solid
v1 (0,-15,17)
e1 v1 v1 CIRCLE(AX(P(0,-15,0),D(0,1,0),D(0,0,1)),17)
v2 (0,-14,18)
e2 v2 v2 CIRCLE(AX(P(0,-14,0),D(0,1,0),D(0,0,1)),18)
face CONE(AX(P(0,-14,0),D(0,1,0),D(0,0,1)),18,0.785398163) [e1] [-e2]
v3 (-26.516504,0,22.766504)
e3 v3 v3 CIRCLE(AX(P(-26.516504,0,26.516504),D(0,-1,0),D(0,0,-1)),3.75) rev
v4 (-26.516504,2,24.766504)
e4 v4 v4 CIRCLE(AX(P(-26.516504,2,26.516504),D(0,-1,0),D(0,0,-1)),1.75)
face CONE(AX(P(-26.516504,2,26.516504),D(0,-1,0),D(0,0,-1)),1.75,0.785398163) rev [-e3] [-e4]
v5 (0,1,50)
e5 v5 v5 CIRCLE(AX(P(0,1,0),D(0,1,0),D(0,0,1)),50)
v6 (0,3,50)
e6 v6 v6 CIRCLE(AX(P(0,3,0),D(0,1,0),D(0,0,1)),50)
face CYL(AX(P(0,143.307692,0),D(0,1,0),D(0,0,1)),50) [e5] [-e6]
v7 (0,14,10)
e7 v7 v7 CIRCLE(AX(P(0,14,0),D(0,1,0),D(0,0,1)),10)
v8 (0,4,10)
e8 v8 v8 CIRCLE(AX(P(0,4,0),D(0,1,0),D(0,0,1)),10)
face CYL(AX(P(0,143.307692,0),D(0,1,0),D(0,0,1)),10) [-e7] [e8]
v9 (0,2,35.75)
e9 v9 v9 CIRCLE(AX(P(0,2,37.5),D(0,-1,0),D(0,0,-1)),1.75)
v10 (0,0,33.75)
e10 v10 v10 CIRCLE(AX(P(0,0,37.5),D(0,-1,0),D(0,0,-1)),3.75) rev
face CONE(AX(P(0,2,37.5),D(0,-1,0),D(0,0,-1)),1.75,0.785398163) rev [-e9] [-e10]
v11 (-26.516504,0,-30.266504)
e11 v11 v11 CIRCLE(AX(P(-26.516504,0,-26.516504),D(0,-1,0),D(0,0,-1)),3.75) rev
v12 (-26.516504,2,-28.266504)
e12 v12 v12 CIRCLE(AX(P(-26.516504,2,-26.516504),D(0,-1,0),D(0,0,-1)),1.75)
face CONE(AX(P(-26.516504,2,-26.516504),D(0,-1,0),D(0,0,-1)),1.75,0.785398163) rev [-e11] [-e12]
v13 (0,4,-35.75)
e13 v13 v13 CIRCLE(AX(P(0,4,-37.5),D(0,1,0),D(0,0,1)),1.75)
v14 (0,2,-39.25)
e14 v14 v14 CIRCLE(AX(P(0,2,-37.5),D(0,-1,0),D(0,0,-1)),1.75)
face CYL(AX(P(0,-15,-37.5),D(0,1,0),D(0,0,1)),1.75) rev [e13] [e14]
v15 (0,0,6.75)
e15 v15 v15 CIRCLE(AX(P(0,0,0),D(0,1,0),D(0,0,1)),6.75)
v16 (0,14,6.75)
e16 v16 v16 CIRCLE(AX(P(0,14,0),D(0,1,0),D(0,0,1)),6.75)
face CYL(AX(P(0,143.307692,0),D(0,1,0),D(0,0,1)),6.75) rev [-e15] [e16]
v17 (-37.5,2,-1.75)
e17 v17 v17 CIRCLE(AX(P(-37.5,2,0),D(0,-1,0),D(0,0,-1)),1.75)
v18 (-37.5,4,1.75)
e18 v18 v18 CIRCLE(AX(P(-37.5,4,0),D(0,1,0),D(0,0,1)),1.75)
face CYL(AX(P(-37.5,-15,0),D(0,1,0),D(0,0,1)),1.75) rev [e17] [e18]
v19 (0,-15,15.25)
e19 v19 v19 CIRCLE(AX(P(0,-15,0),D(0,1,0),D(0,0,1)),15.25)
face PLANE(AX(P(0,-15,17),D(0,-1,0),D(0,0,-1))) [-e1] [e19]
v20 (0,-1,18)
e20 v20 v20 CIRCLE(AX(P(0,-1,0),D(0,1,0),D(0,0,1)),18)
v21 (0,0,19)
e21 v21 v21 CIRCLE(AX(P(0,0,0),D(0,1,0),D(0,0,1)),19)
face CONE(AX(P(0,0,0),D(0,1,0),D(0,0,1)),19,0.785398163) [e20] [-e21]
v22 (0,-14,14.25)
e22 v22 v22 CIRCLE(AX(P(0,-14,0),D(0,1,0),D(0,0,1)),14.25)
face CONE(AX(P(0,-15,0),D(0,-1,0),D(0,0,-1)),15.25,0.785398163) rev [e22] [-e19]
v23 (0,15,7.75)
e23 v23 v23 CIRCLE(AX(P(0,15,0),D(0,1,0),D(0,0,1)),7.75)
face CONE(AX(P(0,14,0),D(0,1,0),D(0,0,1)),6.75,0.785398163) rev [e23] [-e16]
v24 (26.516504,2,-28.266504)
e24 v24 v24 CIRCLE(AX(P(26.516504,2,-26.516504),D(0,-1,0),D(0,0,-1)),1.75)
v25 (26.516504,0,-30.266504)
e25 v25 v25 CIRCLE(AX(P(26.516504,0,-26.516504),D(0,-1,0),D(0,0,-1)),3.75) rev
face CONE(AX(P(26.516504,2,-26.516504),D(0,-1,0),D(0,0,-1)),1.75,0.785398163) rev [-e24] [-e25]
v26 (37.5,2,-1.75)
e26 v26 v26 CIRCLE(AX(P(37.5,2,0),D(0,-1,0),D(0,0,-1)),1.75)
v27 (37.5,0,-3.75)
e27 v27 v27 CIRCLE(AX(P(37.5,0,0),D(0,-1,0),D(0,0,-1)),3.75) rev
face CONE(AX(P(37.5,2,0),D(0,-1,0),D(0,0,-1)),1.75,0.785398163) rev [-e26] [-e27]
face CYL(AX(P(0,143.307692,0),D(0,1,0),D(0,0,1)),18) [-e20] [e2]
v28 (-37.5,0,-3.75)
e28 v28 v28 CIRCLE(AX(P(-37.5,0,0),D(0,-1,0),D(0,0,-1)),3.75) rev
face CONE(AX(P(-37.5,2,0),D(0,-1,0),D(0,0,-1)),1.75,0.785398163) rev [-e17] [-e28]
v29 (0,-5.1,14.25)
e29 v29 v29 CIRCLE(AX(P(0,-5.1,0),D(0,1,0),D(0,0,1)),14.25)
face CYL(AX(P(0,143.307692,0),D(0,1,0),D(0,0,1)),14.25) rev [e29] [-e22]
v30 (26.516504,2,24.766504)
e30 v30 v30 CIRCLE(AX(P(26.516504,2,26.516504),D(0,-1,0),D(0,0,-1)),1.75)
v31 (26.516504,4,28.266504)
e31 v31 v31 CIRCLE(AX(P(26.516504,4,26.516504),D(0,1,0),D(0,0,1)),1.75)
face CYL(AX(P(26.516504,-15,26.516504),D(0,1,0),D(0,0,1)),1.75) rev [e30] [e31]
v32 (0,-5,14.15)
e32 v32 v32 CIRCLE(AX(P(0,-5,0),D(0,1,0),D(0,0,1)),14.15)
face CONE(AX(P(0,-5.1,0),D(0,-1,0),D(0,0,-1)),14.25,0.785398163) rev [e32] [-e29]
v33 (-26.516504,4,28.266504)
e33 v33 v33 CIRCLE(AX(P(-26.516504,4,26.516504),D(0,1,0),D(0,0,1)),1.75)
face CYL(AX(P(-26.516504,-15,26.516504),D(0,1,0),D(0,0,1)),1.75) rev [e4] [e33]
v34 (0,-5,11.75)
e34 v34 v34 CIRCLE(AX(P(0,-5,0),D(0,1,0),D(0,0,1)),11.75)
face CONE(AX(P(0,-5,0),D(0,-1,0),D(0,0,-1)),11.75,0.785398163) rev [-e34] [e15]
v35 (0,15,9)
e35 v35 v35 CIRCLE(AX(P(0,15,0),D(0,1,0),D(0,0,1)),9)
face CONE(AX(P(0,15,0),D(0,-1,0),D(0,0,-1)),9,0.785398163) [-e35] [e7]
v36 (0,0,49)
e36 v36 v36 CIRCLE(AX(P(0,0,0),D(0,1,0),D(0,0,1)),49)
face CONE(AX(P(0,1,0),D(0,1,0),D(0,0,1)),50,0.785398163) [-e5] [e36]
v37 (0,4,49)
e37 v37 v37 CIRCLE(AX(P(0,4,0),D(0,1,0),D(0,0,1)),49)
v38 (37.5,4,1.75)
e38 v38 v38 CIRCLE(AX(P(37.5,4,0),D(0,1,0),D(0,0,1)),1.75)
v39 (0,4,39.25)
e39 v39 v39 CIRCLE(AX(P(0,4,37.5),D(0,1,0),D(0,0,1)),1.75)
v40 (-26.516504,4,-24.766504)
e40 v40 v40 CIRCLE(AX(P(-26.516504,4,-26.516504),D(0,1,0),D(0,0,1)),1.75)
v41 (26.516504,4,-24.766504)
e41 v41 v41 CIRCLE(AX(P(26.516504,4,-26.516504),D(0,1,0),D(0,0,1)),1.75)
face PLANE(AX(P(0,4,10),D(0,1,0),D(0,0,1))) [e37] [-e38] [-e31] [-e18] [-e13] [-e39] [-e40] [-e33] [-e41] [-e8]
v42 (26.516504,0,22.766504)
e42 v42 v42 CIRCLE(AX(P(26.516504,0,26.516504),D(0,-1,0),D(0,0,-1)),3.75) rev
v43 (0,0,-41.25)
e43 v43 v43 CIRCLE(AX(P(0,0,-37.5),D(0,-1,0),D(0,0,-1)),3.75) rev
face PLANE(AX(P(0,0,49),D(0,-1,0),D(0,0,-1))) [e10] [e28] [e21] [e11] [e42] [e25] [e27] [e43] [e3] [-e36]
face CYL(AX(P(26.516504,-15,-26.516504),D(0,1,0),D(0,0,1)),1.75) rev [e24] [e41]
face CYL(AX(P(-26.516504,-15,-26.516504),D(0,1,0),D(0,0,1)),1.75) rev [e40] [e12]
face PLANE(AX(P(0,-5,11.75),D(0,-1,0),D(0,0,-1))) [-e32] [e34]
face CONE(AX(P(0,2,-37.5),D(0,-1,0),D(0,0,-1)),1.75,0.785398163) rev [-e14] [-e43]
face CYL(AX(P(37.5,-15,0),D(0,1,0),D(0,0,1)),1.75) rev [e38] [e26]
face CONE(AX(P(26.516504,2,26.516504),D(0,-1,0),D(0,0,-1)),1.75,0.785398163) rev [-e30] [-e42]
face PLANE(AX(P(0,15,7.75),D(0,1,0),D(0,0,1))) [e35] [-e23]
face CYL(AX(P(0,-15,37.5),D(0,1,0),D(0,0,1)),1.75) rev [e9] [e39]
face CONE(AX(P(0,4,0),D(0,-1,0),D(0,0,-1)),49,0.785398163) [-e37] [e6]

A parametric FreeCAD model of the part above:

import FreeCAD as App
import Part
import Sketcher

V = App.Vector


def edges_at(feature, points):
    """Names of the edges that pass closest to the given points."""
    edges = feature.Shape.Edges
    near = lambda p: min(range(len(edges)), key=lambda i: edges[i].distToShape(Part.Vertex(*p))[0])
    return sorted({f"Edge{near(p) + 1}" for p in points})

doc = App.newDocument("Part")
body = doc.addObject("PartDesign::Body", "Body")

# Sketch on YZ plane
sketch1 = doc.addObject("Sketcher::SketchObject", "Sketch")
body.addObject(sketch1)
sketch1.AttachmentSupport = (doc.YZ_Plane, [""])
sketch1.MapMode = "FlatFace"
sketch1.addGeometry(Part.LineSegment(V(14, 10, 0), V(4, 10, 0)), False)
sketch1.addGeometry(Part.LineSegment(V(4, 10, 0), V(4, 49, 0)), False)
sketch1.addGeometry(Part.LineSegment(V(4, 49, 0), V(3, 50, 0)), False)
sketch1.addGeometry(Part.LineSegment(V(3, 50, 0), V(1, 50, 0)), False)
sketch1.addGeometry(Part.LineSegment(V(1, 50, 0), V(0, 49, 0)), False)
sketch1.addGeometry(Part.LineSegment(V(0, 49, 0), V(0, 19, 0)), False)
sketch1.addGeometry(Part.LineSegment(V(0, 19, 0), V(-1, 18, 0)), False)
sketch1.addGeometry(Part.LineSegment(V(-1, 18, 0), V(-14, 18, 0)), False)
sketch1.addGeometry(Part.LineSegment(V(-14, 18, 0), V(-15, 17, 0)), False)
sketch1.addGeometry(Part.LineSegment(V(-15, 17, 0), V(-15, 15.25, 0)), False)
sketch1.addGeometry(Part.LineSegment(V(-15, 15.25, 0), V(-14, 14.25, 0)), False)
sketch1.addGeometry(Part.LineSegment(V(-14, 14.25, 0), V(-5.1, 14.25, 0)), False)
sketch1.addGeometry(Part.LineSegment(V(-5.1, 14.25, 0), V(-5, 14.15, 0)), False)
sketch1.addGeometry(Part.LineSegment(V(-5, 14.15, 0), V(-5, 11.75, 0)), False)
sketch1.addGeometry(Part.LineSegment(V(-5, 11.75, 0), V(0, 6.75, 0)), False)
sketch1.addGeometry(Part.LineSegment(V(0, 6.75, 0), V(14, 6.75, 0)), False)
sketch1.addGeometry(Part.LineSegment(V(14, 6.75, 0), V(15, 7.75, 0)), False)
sketch1.addGeometry(Part.LineSegment(V(15, 7.75, 0), V(15, 9, 0)), False)
sketch1.addGeometry(Part.LineSegment(V(15, 9, 0), V(14, 10, 0)), False)
sketch1.addConstraint(Sketcher.Constraint("Coincident", 0, 2, 1, 1))
sketch1.addConstraint(Sketcher.Constraint("Coincident", 1, 2, 2, 1))
sketch1.addConstraint(Sketcher.Constraint("Coincident", 2, 2, 3, 1))
sketch1.addConstraint(Sketcher.Constraint("Coincident", 3, 2, 4, 1))
sketch1.addConstraint(Sketcher.Constraint("Coincident", 4, 2, 5, 1))
sketch1.addConstraint(Sketcher.Constraint("Coincident", 5, 2, 6, 1))
sketch1.addConstraint(Sketcher.Constraint("Coincident", 6, 2, 7, 1))
sketch1.addConstraint(Sketcher.Constraint("Coincident", 7, 2, 8, 1))
sketch1.addConstraint(Sketcher.Constraint("Coincident", 8, 2, 9, 1))
sketch1.addConstraint(Sketcher.Constraint("Coincident", 9, 2, 10, 1))
sketch1.addConstraint(Sketcher.Constraint("Coincident", 10, 2, 11, 1))
sketch1.addConstraint(Sketcher.Constraint("Coincident", 11, 2, 12, 1))
sketch1.addConstraint(Sketcher.Constraint("Coincident", 12, 2, 13, 1))
sketch1.addConstraint(Sketcher.Constraint("Coincident", 13, 2, 14, 1))
sketch1.addConstraint(Sketcher.Constraint("Coincident", 14, 2, 15, 1))
sketch1.addConstraint(Sketcher.Constraint("Coincident", 15, 2, 16, 1))
sketch1.addConstraint(Sketcher.Constraint("Coincident", 16, 2, 17, 1))
sketch1.addConstraint(Sketcher.Constraint("Coincident", 17, 2, 18, 1))
sketch1.addConstraint(Sketcher.Constraint("Coincident", 18, 2, 0, 1))
sketch1.addConstraint(Sketcher.Constraint("Horizontal", 0))
sketch1.addConstraint(Sketcher.Constraint("Vertical", 1))
sketch1.addConstraint(Sketcher.Constraint("Horizontal", 3))
sketch1.addConstraint(Sketcher.Constraint("Vertical", 5))
sketch1.addConstraint(Sketcher.Constraint("Horizontal", 7))
sketch1.addConstraint(Sketcher.Constraint("Vertical", 9))
sketch1.addConstraint(Sketcher.Constraint("Horizontal", 11))
sketch1.addConstraint(Sketcher.Constraint("Vertical", 13))
sketch1.addConstraint(Sketcher.Constraint("Horizontal", 15))
sketch1.addConstraint(Sketcher.Constraint("Vertical", 17))
sketch1.addConstraint(Sketcher.Constraint("PointOnObject", 4, 2, -2))
sketch1.addConstraint(Sketcher.Constraint("PointOnObject", 14, 2, -2))
sketch1.addConstraint(Sketcher.Constraint("Perpendicular", 2, 4))
sketch1.addConstraint(Sketcher.Constraint("Parallel", 4, 6))
sketch1.addConstraint(Sketcher.Constraint("Parallel", 6, 8))
sketch1.addConstraint(Sketcher.Constraint("Perpendicular", 8, 10))
sketch1.addConstraint(Sketcher.Constraint("Parallel", 10, 12))
sketch1.addConstraint(Sketcher.Constraint("Parallel", 12, 14))
sketch1.addConstraint(Sketcher.Constraint("Perpendicular", 14, 16))
sketch1.addConstraint(Sketcher.Constraint("Perpendicular", 16, 18))
sketch1.addConstraint(Sketcher.Constraint("Horizontal", 1, 2, 4, 2))
sketch1.addConstraint(Sketcher.Constraint("Vertical", 7, 2, 10, 2))
sketch1.addConstraint(Sketcher.Constraint("Vertical", 15, 2, 18, 2))
sketch1.addConstraint(Sketcher.Constraint("Equal", 2, 4))
sketch1.addConstraint(Sketcher.Constraint("Equal", 4, 6))
sketch1.addConstraint(Sketcher.Constraint("Equal", 6, 8))
sketch1.addConstraint(Sketcher.Constraint("Equal", 10, 16))
sketch1.addConstraint(Sketcher.Constraint("DistanceX", 0, 2, 0, 1, 10.0))
sketch1.addConstraint(Sketcher.Constraint("DistanceX", 3, 2, 3, 1, 2.0))
sketch1.addConstraint(Sketcher.Constraint("DistanceX", 7, 2, 7, 1, 13.0))
sketch1.addConstraint(Sketcher.Constraint("DistanceX", 15, 1, 15, 2, 14.0))
sketch1.addConstraint(Sketcher.Constraint("DistanceY", 1, 1, 1, 2, 39.0))
sketch1.addConstraint(Sketcher.Constraint("DistanceY", 5, 2, 5, 1, 30.0))
sketch1.addConstraint(Sketcher.Constraint("DistanceX", 11, 1, 11, 2, 8.9))
sketch1.addConstraint(Sketcher.Constraint("DistanceY", 13, 2, 13, 1, 2.4))
sketch1.addConstraint(Sketcher.Constraint("DistanceY", -1, 1, 0, 2, 10.0))
sketch1.addConstraint(Sketcher.Constraint("DistanceX", 12, 2, -1, 1, 5.0))
sketch1.addConstraint(Sketcher.Constraint("DistanceY", 9, 2, 9, 1, 1.75))
revolution = doc.addObject("PartDesign::Revolution", "Revolution")
body.addObject(revolution)
revolution.Profile = sketch1
revolution.ReferenceAxis = (sketch1, ["H_Axis"])
revolution.Angle = 360

# Sketch on XZ plane
sketch2 = doc.addObject("Sketcher::SketchObject", "Sketch001")
body.addObject(sketch2)
sketch2.AttachmentSupport = (doc.XZ_Plane, [""])
sketch2.MapMode = "FlatFace"
sketch2.AttachmentOffset = App.Placement(V(0, 0, -4), App.Rotation())
sketch2.addGeometry(Part.Circle(V(0, -37.5, 0), V(0, 0, 1), 1.8), False)
sketch2.addGeometry(Part.Circle(V(26.5, -26.5, 0), V(0, 0, 1), 1.8), False)
sketch2.addGeometry(Part.Circle(V(37.5, 0, 0), V(0, 0, 1), 1.8), False)
sketch2.addGeometry(Part.Circle(V(26.5, 26.5, 0), V(0, 0, 1), 1.8), False)
sketch2.addGeometry(Part.Circle(V(0, 37.5, 0), V(0, 0, 1), 1.8), False)
sketch2.addGeometry(Part.Circle(V(-26.5, 26.5, 0), V(0, 0, 1), 1.8), False)
sketch2.addGeometry(Part.Circle(V(-37.5, 0, 0), V(0, 0, 1), 1.8), False)
sketch2.addGeometry(Part.Circle(V(-26.5, -26.5, 0), V(0, 0, 1), 1.8), False)
sketch2.addConstraint(Sketcher.Constraint("Equal", 0, 1))
sketch2.addConstraint(Sketcher.Constraint("Equal", 1, 2))
sketch2.addConstraint(Sketcher.Constraint("Equal", 2, 3))
sketch2.addConstraint(Sketcher.Constraint("Equal", 3, 4))
sketch2.addConstraint(Sketcher.Constraint("Equal", 4, 5))
sketch2.addConstraint(Sketcher.Constraint("Equal", 5, 6))
sketch2.addConstraint(Sketcher.Constraint("Equal", 6, 7))
sketch2.addConstraint(Sketcher.Constraint("Symmetric", 0, 3, 4, 3, -1, 1))
sketch2.addConstraint(Sketcher.Constraint("Symmetric", 1, 3, 5, 3, -1, 1))
sketch2.addConstraint(Sketcher.Constraint("Symmetric", 2, 3, 6, 3, -1, 1))
sketch2.addConstraint(Sketcher.Constraint("Symmetric", 3, 3, 7, 3, -1, 1))
sketch2.addConstraint(Sketcher.Constraint("Symmetric", 3, 3, 5, 3, -2))
sketch2.addConstraint(Sketcher.Constraint("PointOnObject", 0, 3, -2))
sketch2.addConstraint(Sketcher.Constraint("PointOnObject", 2, 3, -1))
sketch2.addConstraint(Sketcher.Constraint("Diameter", 0, 3.5))
sketch2.addConstraint(Sketcher.Constraint("DistanceY", 0, 3, 4, 3, 75.0))
sketch2.addConstraint(Sketcher.Constraint("DistanceX", -1, 1, 2, 3, 37.5))
sketch2.addConstraint(Sketcher.Constraint("DistanceY", 1, 3, 3, 3, 53.033009))
sketch2.addConstraint(Sketcher.Constraint("DistanceX", 5, 3, 3, 3, 53.033009))
pocket1 = doc.addObject("PartDesign::Pocket", "Pocket")
body.addObject(pocket1)
pocket1.Profile = sketch2
pocket1.Type = "ThroughAll"
pocket1.Midplane = True
doc.recompute()

chamfer = doc.addObject("PartDesign::Chamfer", "Chamfer")
body.addObject(chamfer)
chamfer.Base = (pocket1, edges_at(pocket1, [
    (0, 0, -39.25),
    (26.517, 0, -28.267),
    (37.5, 0, -1.75),
    (26.517, 0, 24.767),
    (0, 0, 35.75),
    (-26.517, 0, 24.767),
    (-37.5, 0, -1.75),
    (-26.517, 0, -28.267),
]))
chamfer.Size = 2

doc.recompute()
